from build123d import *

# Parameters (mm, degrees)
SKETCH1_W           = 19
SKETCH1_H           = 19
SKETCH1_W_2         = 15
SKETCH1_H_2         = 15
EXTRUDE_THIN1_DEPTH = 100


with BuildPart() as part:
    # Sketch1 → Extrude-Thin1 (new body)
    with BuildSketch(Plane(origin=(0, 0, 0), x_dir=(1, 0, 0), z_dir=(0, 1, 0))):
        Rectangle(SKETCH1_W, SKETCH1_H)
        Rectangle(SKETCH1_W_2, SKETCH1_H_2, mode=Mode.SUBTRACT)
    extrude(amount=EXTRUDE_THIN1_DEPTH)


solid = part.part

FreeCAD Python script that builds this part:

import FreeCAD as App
import Part
import Sketcher

V = App.Vector


def add_polygon(sketch, points):
    """Adds a closed chain of lines whose ends are joined by coincident constraints."""
    first, n = sketch.GeometryCount, len(points)
    for a, b in zip(points, points[1:] + points[:1]):
        sketch.addGeometry(Part.LineSegment(App.Vector(*a, 0), App.Vector(*b, 0)), False)
    for i in range(n):
        sketch.addConstraint(Sketcher.Constraint("Coincident", first + i, 2, first + (i + 1) % n, 1))

doc = App.newDocument("Part")
body = doc.addObject("PartDesign::Body", "Body")

sketch1 = doc.addObject("Sketcher::SketchObject", "Sketch")
body.addObject(sketch1)
sketch1.AttachmentSupport = (doc.XZ_Plane, [""])
sketch1.MapMode = "FlatFace"
add_polygon(sketch1, [(-10, -10), (-10, 10), (10, 10), (10, -10)])
add_polygon(sketch1, [(8, 8), (-8, 8), (-8, -8), (8, -8)])
sketch1.addConstraint([
    Sketcher.Constraint("Vertical", 0),
    Sketcher.Constraint("Horizontal", 1),
    Sketcher.Constraint("Vertical", 2),
    Sketcher.Constraint("Horizontal", 3),
    Sketcher.Constraint("Horizontal", 4),
    Sketcher.Constraint("Vertical", 5),
    Sketcher.Constraint("Horizontal", 6),
    Sketcher.Constraint("Vertical", 7),
    Sketcher.Constraint("Symmetric", 0, 2, 2, 2, -1, 1),
    Sketcher.Constraint("Symmetric", 4, 2, 6, 2, -1, 1),
    Sketcher.Constraint("Equal", 3, 0),
    Sketcher.Constraint("Equal", 6, 5),
    Sketcher.Constraint("DistanceX", 1, 1, 1, 2, 19.0),
    Sketcher.Constraint("DistanceX", 4, 2, 4, 1, 15.0),
])
pad1 = doc.addObject("PartDesign::Pad", "Pad")
body.addObject(pad1)
pad1.Profile = sketch1
pad1.Length = 100
pad1.Reversed = True

doc.recompute()
